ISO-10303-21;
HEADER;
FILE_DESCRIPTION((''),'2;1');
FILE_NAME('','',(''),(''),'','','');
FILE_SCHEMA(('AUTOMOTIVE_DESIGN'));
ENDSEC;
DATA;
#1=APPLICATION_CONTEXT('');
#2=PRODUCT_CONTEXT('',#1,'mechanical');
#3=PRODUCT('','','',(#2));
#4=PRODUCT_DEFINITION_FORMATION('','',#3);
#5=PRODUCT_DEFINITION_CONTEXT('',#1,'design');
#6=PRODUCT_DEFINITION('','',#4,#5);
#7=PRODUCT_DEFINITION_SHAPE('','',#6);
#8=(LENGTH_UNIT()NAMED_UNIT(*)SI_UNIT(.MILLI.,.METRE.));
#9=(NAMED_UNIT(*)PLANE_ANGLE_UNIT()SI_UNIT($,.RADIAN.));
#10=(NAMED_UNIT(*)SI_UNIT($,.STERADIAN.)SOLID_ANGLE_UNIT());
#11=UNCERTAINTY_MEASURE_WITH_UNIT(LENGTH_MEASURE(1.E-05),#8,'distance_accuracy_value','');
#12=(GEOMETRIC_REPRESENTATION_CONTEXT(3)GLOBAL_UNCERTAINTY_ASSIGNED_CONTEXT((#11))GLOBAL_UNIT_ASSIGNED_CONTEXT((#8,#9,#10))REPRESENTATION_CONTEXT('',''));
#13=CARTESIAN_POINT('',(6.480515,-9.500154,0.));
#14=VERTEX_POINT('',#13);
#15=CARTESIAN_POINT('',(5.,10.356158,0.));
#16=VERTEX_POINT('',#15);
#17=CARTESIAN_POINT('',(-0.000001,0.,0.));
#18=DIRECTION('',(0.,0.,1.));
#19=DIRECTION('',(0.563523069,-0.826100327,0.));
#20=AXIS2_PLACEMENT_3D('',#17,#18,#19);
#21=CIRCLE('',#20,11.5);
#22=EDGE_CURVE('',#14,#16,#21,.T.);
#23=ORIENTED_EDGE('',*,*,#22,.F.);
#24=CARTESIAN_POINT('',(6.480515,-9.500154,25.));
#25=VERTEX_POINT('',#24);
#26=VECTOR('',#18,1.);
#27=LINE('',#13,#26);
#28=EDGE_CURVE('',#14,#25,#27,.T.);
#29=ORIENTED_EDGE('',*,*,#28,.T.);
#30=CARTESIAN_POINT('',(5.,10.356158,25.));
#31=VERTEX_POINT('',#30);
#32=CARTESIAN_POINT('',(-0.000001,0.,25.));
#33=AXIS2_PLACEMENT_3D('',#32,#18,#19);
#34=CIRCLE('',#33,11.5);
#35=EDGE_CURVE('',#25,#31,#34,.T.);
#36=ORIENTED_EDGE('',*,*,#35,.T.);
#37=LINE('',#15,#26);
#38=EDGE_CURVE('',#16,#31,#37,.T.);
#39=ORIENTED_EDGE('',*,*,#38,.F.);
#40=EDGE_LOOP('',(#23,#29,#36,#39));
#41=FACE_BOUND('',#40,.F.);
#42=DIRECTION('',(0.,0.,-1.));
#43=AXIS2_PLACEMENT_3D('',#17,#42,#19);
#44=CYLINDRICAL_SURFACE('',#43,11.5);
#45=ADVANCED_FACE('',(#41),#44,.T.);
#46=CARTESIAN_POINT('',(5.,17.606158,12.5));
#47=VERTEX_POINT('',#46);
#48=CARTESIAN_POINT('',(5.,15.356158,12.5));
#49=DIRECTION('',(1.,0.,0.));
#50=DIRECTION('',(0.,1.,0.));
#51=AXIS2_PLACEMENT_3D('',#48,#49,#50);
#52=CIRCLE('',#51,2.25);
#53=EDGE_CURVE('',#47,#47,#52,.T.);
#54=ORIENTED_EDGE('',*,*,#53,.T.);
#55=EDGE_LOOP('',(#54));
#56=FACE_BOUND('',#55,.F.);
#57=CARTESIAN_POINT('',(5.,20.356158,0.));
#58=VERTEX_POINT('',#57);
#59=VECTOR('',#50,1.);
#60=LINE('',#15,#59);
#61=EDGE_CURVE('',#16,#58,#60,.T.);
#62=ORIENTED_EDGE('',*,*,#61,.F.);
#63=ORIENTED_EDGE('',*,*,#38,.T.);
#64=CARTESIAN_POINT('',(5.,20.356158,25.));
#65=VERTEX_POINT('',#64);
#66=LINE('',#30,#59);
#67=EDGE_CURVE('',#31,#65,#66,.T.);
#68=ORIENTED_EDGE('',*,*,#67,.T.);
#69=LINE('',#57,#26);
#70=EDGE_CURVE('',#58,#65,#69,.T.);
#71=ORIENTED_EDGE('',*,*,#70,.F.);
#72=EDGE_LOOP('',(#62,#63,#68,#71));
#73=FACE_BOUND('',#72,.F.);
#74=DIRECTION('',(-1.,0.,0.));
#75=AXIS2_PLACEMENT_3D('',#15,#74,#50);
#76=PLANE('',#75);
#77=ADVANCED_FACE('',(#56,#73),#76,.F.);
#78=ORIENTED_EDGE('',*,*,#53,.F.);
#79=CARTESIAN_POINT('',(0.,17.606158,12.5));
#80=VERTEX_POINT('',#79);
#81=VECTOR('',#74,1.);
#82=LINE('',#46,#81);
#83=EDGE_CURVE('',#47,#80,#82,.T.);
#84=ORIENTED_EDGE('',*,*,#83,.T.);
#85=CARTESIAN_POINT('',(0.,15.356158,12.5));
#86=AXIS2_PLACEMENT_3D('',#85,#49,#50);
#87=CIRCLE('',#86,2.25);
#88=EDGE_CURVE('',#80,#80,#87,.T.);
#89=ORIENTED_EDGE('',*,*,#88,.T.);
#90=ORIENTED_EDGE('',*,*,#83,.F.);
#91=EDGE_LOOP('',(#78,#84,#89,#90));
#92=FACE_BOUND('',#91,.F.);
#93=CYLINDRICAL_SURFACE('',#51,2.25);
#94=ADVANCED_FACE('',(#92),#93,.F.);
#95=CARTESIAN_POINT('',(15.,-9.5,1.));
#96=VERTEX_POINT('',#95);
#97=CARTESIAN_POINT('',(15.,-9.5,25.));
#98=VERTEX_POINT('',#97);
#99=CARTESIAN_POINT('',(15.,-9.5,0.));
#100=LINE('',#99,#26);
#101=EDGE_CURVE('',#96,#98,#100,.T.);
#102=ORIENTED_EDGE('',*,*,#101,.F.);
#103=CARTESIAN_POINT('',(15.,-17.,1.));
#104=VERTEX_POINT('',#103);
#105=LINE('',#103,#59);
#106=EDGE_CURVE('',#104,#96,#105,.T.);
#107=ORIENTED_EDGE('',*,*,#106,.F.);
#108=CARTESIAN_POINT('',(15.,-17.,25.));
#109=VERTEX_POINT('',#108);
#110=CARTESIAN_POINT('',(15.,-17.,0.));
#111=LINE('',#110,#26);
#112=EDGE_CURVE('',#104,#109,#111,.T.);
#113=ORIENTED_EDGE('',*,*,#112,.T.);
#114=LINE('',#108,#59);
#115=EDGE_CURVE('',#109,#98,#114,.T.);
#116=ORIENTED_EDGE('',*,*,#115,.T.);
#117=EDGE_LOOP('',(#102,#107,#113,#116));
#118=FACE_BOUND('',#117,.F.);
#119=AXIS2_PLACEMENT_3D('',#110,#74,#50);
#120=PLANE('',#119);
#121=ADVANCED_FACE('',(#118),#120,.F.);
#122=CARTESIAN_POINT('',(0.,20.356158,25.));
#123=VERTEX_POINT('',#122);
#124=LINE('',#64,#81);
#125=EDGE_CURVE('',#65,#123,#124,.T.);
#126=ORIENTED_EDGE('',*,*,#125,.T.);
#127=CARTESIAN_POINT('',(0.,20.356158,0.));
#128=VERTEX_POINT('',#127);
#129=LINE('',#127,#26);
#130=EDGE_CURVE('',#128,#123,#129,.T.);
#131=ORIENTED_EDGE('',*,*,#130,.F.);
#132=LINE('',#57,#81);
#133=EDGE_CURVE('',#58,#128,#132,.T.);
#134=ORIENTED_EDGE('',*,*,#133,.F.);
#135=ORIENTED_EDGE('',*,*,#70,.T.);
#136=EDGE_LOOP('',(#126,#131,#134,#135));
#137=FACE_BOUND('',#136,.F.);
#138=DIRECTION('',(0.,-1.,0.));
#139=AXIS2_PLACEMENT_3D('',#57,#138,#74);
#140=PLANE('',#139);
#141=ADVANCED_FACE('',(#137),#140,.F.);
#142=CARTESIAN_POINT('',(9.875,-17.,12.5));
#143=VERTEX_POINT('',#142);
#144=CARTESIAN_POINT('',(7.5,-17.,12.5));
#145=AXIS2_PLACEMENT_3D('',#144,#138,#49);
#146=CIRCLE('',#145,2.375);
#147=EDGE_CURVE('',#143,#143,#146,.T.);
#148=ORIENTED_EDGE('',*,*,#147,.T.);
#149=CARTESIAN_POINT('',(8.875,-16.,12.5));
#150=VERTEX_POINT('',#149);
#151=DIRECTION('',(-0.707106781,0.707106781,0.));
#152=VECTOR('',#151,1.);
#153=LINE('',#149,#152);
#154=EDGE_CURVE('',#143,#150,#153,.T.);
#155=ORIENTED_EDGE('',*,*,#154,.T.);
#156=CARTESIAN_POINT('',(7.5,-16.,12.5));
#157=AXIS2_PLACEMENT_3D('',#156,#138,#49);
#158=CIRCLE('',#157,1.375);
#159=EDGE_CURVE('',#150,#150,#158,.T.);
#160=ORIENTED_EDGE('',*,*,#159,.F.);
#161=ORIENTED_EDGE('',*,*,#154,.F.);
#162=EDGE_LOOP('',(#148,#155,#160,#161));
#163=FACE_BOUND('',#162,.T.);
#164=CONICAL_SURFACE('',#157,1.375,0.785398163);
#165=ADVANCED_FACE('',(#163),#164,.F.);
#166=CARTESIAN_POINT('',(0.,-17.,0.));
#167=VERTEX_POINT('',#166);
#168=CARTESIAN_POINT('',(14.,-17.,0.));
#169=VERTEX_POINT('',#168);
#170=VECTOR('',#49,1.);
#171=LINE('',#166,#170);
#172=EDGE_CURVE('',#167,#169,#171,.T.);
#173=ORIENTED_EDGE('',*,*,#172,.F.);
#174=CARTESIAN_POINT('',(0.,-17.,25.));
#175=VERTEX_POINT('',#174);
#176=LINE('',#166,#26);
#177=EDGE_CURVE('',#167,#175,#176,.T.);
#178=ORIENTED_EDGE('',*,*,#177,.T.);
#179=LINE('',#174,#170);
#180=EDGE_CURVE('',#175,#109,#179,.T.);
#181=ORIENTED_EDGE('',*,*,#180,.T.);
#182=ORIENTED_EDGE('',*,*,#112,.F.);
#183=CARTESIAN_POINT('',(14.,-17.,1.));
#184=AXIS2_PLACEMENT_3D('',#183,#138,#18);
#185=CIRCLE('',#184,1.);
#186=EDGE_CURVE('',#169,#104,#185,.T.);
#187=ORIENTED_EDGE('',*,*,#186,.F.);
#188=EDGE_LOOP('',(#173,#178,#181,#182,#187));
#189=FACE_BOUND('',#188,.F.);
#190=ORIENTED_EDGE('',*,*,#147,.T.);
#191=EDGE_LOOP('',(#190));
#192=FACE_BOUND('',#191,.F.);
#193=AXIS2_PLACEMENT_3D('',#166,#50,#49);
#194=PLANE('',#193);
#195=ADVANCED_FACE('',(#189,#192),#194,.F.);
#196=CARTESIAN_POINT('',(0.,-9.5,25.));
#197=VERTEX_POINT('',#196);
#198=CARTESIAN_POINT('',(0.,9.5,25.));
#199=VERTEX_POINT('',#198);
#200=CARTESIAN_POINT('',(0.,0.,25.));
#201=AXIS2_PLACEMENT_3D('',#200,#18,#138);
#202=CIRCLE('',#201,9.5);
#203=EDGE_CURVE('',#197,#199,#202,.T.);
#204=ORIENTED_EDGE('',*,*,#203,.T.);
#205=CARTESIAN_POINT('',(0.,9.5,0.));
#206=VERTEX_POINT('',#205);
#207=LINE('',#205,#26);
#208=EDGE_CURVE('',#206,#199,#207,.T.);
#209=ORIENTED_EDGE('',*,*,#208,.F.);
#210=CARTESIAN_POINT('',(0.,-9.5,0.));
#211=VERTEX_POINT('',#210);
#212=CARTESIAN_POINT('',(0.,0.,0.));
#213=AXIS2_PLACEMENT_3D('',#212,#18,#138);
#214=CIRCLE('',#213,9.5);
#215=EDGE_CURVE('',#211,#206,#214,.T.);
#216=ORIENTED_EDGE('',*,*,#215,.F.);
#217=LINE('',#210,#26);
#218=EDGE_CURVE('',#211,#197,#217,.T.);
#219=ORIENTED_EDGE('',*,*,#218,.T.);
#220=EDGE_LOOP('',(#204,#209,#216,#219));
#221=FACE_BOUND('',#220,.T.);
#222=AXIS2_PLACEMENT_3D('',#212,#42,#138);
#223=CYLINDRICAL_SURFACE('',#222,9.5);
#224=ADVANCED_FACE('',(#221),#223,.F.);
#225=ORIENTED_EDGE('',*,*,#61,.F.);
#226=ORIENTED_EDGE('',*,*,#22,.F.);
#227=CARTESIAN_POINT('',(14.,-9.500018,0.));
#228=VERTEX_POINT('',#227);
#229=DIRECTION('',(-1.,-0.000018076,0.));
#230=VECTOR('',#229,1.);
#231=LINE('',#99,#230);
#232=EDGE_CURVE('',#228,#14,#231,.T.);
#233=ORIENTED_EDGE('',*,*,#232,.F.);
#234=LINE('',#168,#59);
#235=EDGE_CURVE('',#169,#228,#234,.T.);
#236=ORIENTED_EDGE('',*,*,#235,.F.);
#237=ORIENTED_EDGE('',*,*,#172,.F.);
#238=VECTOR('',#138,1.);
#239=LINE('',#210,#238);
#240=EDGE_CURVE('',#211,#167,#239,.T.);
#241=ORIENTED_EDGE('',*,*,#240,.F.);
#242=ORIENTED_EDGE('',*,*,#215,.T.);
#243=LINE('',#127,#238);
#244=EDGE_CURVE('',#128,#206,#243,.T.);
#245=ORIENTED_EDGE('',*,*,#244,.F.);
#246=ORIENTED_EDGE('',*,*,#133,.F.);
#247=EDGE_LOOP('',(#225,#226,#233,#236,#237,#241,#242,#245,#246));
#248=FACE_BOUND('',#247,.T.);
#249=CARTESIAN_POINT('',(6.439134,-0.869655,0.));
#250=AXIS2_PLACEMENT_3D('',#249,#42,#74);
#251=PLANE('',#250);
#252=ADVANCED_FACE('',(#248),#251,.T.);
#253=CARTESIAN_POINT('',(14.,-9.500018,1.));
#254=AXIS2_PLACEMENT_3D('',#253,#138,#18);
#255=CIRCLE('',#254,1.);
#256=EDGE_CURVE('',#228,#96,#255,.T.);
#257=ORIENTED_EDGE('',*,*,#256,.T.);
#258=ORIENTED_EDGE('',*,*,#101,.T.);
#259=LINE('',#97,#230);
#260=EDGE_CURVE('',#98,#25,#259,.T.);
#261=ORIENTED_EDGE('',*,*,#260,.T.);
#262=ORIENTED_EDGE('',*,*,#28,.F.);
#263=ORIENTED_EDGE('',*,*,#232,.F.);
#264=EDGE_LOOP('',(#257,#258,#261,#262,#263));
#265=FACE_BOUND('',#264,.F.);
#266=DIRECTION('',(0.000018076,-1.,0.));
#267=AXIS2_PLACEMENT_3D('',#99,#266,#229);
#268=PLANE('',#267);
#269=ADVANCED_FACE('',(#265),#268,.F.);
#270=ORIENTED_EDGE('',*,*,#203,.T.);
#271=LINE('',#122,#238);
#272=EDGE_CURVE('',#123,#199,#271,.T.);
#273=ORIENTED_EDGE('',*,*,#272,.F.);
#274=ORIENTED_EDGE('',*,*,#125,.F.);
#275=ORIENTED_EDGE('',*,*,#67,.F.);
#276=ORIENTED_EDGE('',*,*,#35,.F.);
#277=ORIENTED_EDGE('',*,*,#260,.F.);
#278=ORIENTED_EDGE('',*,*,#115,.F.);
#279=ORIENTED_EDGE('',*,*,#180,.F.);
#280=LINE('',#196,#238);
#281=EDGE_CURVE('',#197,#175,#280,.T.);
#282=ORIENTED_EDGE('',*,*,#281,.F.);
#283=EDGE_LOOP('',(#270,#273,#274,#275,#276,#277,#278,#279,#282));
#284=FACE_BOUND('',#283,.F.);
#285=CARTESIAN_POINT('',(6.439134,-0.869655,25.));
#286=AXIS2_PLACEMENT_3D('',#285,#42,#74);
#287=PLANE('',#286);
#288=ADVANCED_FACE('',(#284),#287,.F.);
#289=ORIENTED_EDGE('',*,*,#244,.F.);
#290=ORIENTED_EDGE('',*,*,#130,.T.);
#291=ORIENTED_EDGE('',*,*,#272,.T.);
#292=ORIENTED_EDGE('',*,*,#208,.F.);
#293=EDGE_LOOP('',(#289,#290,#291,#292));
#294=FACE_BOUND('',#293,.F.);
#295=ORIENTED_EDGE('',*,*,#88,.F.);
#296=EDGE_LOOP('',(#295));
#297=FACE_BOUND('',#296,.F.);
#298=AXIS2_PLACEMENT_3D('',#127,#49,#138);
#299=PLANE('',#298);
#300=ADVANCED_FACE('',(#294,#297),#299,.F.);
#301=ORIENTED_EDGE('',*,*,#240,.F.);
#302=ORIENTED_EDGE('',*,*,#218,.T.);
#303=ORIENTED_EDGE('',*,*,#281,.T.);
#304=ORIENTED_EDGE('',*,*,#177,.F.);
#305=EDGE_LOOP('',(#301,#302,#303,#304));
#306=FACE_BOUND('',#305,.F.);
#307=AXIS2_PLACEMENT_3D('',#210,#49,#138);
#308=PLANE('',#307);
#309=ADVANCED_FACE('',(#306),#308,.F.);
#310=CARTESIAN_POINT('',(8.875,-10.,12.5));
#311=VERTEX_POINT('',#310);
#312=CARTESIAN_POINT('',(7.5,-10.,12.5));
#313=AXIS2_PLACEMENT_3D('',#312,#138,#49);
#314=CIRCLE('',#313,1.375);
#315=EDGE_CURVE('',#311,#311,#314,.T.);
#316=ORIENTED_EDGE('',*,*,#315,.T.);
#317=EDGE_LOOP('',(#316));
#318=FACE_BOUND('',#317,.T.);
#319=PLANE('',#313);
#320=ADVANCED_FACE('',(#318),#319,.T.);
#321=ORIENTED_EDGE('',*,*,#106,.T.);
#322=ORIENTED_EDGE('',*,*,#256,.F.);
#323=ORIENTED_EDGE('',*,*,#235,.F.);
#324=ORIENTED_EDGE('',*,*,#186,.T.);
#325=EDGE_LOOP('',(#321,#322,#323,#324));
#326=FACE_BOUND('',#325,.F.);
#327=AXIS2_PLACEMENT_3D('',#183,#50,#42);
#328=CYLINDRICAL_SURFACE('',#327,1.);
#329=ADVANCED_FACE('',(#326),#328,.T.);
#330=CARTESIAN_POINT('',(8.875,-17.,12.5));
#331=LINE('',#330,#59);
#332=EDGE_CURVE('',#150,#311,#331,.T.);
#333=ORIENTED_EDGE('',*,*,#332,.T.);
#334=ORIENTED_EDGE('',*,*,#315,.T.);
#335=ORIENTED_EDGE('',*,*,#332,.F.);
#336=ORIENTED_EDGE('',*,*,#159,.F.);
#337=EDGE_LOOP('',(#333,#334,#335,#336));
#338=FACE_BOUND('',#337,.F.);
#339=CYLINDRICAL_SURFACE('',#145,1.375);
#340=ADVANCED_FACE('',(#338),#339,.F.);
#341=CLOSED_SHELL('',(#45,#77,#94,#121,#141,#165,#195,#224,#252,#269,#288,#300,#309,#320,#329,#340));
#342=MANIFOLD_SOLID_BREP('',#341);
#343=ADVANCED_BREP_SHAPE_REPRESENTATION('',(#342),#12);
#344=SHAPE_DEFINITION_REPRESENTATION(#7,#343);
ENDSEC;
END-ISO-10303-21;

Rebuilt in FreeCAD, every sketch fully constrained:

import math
import FreeCAD as App
import Part
import Sketcher

V = App.Vector


def edges_at(feature, points):
    """Names of the edges that pass closest to the given points."""
    edges = feature.Shape.Edges
    near = lambda p: min(range(len(edges)), key=lambda i: edges[i].distToShape(Part.Vertex(*p))[0])
    return sorted({f"Edge{near(p) + 1}" for p in points})

doc = App.newDocument("Part")
body = doc.addObject("PartDesign::Body", "Body")

sketch1 = body.newObject("Sketcher::SketchObject", "Sketch")
sketch1.AttachmentSupport = (doc.getObject("XY_Plane"), [""])
sketch1.MapMode = "FlatFace"
sketch1.addGeometry(Part.ArcOfCircle(Part.Circle(V(0, 0, 0), V(0, 0, 1), 9.5), math.radians(-90), math.radians(90)), False)
sketch1.addGeometry(Part.LineSegment(V(0, -9.5, 0), V(0, -17, 0)), False)
sketch1.addGeometry(Part.LineSegment(V(0, -17, 0), V(15, -17, 0)), False)
sketch1.addGeometry(Part.LineSegment(V(15, -17, 0), V(15, -9.5, 0)), False)
sketch1.addGeometry(Part.LineSegment(V(15, -9.5, 0), V(6.480515, -9.500154, 0)), False)
sketch1.addGeometry(Part.ArcOfCircle(Part.Circle(V(-0.000001, 0, 0), V(0, 0, 1), 11.5), math.radians(-55.700207), math.radians(64.228536)), False)
sketch1.addGeometry(Part.LineSegment(V(5, 10.356158, 0), V(5, 20.356158, 0)), False)
sketch1.addGeometry(Part.LineSegment(V(5, 20.356158, 0), V(0, 20.356158, 0)), False)
sketch1.addGeometry(Part.LineSegment(V(0, 20.356158, 0), V(0, 9.5, 0)), False)
sketch1.addConstraint(Sketcher.Constraint("Coincident", 0, 1, 1, 1))
sketch1.addConstraint(Sketcher.Constraint("Coincident", 1, 2, 2, 1))
sketch1.addConstraint(Sketcher.Constraint("Coincident", 2, 2, 3, 1))
sketch1.addConstraint(Sketcher.Constraint("Coincident", 3, 2, 4, 1))
sketch1.addConstraint(Sketcher.Constraint("Coincident", 4, 2, 5, 1))
sketch1.addConstraint(Sketcher.Constraint("Coincident", 5, 2, 6, 1))
sketch1.addConstraint(Sketcher.Constraint("Coincident", 6, 2, 7, 1))
sketch1.addConstraint(Sketcher.Constraint("Coincident", 7, 2, 8, 1))
sketch1.addConstraint(Sketcher.Constraint("Coincident", 8, 2, 0, 2))
sketch1.addConstraint(Sketcher.Constraint("Vertical", 1))
sketch1.addConstraint(Sketcher.Constraint("Horizontal", 2))
sketch1.addConstraint(Sketcher.Constraint("Vertical", 3))
sketch1.addConstraint(Sketcher.Constraint("Vertical", 6))
sketch1.addConstraint(Sketcher.Constraint("Horizontal", 7))
sketch1.addConstraint(Sketcher.Constraint("Vertical", 8))
sketch1.addConstraint(Sketcher.Constraint("Coincident", 0, 3, -1, 1))
sketch1.addConstraint(Sketcher.Constraint("Coincident", 5, 3, -1, 1))
sketch1.addConstraint(Sketcher.Constraint("PointOnObject", 0, 1, -2))
sketch1.addConstraint(Sketcher.Constraint("PointOnObject", 7, 2, -2))
sketch1.addConstraint(Sketcher.Constraint("Horizontal", 0, 1, 3, 2))
sketch1.addConstraint(Sketcher.Constraint("Radius", 0, 9.5))
sketch1.addConstraint(Sketcher.Constraint("Radius", 5, 11.5))
sketch1.addConstraint(Sketcher.Constraint("DistanceX", 2, 1, 2, 2, 15.0))
sketch1.addConstraint(Sketcher.Constraint("DistanceX", 7, 2, 7, 1, 5.0))
sketch1.addConstraint(Sketcher.Constraint("DistanceY", 6, 1, 6, 2, 10.0))
sketch1.addConstraint(Sketcher.Constraint("DistanceY", 1, 2, 1, 1, 7.5))
sketch1.addConstraint(Sketcher.Constraint("Distance", 4, 8.519485))
pad1 = body.newObject("PartDesign::Pad", "Pad")
pad1.Profile = sketch1
pad1.Length = 25

sketch2 = body.newObject("Sketcher::SketchObject", "Sketch001")
sketch2.AttachmentSupport = (doc.getObject("XZ_Plane"), [""])
sketch2.MapMode = "FlatFace"
sketch2.AttachmentOffset = App.Placement(V(0, 0, 17), App.Rotation())
sketch2.addGeometry(Part.Circle(V(7.5, 12.5, 0), V(0, 0, 1), 1.375), False)
sketch2.addConstraint(Sketcher.Constraint("Diameter", 0, 2.75))
sketch2.addConstraint(Sketcher.Constraint("DistanceX", -1, 1, 0, 3, 7.5))
sketch2.addConstraint(Sketcher.Constraint("DistanceY", -1, 1, 0, 3, 12.5))
pocket1 = body.newObject("PartDesign::Pocket", "Pocket")
pocket1.Profile = sketch2
pocket1.Length = 7

sketch3 = body.newObject("Sketcher::SketchObject", "Sketch002")
sketch3.AttachmentSupport = (doc.getObject("YZ_Plane"), [""])
sketch3.MapMode = "FlatFace"
sketch3.AttachmentOffset = App.Placement(V(0, 0, 5), App.Rotation())
sketch3.addGeometry(Part.Circle(V(15.356158, 12.5, 0), V(0, 0, 1), 2.25), False)
sketch3.addConstraint(Sketcher.Constraint("Diameter", 0, 4.5))
sketch3.addConstraint(Sketcher.Constraint("DistanceY", -1, 1, 0, 3, 12.5))
sketch3.addConstraint(Sketcher.Constraint("DistanceX", -1, 1, 0, 3, 15.356158))
pocket2 = body.newObject("PartDesign::Pocket", "Pocket001")
pocket2.Profile = sketch3
pocket2.Length = 5
doc.recompute()

fillet = body.newObject("PartDesign::Fillet", "Fillet")
fillet.Base = (pocket2, edges_at(pocket2, [(15, -13.25, 0)]))
fillet.Radius = 1
doc.recompute()

chamfer = body.newObject("PartDesign::Chamfer", "Chamfer")
chamfer.Base = (fillet, edges_at(fillet, [(6.125, -17, 12.5)]))
chamfer.Size = 1

doc.recompute()
